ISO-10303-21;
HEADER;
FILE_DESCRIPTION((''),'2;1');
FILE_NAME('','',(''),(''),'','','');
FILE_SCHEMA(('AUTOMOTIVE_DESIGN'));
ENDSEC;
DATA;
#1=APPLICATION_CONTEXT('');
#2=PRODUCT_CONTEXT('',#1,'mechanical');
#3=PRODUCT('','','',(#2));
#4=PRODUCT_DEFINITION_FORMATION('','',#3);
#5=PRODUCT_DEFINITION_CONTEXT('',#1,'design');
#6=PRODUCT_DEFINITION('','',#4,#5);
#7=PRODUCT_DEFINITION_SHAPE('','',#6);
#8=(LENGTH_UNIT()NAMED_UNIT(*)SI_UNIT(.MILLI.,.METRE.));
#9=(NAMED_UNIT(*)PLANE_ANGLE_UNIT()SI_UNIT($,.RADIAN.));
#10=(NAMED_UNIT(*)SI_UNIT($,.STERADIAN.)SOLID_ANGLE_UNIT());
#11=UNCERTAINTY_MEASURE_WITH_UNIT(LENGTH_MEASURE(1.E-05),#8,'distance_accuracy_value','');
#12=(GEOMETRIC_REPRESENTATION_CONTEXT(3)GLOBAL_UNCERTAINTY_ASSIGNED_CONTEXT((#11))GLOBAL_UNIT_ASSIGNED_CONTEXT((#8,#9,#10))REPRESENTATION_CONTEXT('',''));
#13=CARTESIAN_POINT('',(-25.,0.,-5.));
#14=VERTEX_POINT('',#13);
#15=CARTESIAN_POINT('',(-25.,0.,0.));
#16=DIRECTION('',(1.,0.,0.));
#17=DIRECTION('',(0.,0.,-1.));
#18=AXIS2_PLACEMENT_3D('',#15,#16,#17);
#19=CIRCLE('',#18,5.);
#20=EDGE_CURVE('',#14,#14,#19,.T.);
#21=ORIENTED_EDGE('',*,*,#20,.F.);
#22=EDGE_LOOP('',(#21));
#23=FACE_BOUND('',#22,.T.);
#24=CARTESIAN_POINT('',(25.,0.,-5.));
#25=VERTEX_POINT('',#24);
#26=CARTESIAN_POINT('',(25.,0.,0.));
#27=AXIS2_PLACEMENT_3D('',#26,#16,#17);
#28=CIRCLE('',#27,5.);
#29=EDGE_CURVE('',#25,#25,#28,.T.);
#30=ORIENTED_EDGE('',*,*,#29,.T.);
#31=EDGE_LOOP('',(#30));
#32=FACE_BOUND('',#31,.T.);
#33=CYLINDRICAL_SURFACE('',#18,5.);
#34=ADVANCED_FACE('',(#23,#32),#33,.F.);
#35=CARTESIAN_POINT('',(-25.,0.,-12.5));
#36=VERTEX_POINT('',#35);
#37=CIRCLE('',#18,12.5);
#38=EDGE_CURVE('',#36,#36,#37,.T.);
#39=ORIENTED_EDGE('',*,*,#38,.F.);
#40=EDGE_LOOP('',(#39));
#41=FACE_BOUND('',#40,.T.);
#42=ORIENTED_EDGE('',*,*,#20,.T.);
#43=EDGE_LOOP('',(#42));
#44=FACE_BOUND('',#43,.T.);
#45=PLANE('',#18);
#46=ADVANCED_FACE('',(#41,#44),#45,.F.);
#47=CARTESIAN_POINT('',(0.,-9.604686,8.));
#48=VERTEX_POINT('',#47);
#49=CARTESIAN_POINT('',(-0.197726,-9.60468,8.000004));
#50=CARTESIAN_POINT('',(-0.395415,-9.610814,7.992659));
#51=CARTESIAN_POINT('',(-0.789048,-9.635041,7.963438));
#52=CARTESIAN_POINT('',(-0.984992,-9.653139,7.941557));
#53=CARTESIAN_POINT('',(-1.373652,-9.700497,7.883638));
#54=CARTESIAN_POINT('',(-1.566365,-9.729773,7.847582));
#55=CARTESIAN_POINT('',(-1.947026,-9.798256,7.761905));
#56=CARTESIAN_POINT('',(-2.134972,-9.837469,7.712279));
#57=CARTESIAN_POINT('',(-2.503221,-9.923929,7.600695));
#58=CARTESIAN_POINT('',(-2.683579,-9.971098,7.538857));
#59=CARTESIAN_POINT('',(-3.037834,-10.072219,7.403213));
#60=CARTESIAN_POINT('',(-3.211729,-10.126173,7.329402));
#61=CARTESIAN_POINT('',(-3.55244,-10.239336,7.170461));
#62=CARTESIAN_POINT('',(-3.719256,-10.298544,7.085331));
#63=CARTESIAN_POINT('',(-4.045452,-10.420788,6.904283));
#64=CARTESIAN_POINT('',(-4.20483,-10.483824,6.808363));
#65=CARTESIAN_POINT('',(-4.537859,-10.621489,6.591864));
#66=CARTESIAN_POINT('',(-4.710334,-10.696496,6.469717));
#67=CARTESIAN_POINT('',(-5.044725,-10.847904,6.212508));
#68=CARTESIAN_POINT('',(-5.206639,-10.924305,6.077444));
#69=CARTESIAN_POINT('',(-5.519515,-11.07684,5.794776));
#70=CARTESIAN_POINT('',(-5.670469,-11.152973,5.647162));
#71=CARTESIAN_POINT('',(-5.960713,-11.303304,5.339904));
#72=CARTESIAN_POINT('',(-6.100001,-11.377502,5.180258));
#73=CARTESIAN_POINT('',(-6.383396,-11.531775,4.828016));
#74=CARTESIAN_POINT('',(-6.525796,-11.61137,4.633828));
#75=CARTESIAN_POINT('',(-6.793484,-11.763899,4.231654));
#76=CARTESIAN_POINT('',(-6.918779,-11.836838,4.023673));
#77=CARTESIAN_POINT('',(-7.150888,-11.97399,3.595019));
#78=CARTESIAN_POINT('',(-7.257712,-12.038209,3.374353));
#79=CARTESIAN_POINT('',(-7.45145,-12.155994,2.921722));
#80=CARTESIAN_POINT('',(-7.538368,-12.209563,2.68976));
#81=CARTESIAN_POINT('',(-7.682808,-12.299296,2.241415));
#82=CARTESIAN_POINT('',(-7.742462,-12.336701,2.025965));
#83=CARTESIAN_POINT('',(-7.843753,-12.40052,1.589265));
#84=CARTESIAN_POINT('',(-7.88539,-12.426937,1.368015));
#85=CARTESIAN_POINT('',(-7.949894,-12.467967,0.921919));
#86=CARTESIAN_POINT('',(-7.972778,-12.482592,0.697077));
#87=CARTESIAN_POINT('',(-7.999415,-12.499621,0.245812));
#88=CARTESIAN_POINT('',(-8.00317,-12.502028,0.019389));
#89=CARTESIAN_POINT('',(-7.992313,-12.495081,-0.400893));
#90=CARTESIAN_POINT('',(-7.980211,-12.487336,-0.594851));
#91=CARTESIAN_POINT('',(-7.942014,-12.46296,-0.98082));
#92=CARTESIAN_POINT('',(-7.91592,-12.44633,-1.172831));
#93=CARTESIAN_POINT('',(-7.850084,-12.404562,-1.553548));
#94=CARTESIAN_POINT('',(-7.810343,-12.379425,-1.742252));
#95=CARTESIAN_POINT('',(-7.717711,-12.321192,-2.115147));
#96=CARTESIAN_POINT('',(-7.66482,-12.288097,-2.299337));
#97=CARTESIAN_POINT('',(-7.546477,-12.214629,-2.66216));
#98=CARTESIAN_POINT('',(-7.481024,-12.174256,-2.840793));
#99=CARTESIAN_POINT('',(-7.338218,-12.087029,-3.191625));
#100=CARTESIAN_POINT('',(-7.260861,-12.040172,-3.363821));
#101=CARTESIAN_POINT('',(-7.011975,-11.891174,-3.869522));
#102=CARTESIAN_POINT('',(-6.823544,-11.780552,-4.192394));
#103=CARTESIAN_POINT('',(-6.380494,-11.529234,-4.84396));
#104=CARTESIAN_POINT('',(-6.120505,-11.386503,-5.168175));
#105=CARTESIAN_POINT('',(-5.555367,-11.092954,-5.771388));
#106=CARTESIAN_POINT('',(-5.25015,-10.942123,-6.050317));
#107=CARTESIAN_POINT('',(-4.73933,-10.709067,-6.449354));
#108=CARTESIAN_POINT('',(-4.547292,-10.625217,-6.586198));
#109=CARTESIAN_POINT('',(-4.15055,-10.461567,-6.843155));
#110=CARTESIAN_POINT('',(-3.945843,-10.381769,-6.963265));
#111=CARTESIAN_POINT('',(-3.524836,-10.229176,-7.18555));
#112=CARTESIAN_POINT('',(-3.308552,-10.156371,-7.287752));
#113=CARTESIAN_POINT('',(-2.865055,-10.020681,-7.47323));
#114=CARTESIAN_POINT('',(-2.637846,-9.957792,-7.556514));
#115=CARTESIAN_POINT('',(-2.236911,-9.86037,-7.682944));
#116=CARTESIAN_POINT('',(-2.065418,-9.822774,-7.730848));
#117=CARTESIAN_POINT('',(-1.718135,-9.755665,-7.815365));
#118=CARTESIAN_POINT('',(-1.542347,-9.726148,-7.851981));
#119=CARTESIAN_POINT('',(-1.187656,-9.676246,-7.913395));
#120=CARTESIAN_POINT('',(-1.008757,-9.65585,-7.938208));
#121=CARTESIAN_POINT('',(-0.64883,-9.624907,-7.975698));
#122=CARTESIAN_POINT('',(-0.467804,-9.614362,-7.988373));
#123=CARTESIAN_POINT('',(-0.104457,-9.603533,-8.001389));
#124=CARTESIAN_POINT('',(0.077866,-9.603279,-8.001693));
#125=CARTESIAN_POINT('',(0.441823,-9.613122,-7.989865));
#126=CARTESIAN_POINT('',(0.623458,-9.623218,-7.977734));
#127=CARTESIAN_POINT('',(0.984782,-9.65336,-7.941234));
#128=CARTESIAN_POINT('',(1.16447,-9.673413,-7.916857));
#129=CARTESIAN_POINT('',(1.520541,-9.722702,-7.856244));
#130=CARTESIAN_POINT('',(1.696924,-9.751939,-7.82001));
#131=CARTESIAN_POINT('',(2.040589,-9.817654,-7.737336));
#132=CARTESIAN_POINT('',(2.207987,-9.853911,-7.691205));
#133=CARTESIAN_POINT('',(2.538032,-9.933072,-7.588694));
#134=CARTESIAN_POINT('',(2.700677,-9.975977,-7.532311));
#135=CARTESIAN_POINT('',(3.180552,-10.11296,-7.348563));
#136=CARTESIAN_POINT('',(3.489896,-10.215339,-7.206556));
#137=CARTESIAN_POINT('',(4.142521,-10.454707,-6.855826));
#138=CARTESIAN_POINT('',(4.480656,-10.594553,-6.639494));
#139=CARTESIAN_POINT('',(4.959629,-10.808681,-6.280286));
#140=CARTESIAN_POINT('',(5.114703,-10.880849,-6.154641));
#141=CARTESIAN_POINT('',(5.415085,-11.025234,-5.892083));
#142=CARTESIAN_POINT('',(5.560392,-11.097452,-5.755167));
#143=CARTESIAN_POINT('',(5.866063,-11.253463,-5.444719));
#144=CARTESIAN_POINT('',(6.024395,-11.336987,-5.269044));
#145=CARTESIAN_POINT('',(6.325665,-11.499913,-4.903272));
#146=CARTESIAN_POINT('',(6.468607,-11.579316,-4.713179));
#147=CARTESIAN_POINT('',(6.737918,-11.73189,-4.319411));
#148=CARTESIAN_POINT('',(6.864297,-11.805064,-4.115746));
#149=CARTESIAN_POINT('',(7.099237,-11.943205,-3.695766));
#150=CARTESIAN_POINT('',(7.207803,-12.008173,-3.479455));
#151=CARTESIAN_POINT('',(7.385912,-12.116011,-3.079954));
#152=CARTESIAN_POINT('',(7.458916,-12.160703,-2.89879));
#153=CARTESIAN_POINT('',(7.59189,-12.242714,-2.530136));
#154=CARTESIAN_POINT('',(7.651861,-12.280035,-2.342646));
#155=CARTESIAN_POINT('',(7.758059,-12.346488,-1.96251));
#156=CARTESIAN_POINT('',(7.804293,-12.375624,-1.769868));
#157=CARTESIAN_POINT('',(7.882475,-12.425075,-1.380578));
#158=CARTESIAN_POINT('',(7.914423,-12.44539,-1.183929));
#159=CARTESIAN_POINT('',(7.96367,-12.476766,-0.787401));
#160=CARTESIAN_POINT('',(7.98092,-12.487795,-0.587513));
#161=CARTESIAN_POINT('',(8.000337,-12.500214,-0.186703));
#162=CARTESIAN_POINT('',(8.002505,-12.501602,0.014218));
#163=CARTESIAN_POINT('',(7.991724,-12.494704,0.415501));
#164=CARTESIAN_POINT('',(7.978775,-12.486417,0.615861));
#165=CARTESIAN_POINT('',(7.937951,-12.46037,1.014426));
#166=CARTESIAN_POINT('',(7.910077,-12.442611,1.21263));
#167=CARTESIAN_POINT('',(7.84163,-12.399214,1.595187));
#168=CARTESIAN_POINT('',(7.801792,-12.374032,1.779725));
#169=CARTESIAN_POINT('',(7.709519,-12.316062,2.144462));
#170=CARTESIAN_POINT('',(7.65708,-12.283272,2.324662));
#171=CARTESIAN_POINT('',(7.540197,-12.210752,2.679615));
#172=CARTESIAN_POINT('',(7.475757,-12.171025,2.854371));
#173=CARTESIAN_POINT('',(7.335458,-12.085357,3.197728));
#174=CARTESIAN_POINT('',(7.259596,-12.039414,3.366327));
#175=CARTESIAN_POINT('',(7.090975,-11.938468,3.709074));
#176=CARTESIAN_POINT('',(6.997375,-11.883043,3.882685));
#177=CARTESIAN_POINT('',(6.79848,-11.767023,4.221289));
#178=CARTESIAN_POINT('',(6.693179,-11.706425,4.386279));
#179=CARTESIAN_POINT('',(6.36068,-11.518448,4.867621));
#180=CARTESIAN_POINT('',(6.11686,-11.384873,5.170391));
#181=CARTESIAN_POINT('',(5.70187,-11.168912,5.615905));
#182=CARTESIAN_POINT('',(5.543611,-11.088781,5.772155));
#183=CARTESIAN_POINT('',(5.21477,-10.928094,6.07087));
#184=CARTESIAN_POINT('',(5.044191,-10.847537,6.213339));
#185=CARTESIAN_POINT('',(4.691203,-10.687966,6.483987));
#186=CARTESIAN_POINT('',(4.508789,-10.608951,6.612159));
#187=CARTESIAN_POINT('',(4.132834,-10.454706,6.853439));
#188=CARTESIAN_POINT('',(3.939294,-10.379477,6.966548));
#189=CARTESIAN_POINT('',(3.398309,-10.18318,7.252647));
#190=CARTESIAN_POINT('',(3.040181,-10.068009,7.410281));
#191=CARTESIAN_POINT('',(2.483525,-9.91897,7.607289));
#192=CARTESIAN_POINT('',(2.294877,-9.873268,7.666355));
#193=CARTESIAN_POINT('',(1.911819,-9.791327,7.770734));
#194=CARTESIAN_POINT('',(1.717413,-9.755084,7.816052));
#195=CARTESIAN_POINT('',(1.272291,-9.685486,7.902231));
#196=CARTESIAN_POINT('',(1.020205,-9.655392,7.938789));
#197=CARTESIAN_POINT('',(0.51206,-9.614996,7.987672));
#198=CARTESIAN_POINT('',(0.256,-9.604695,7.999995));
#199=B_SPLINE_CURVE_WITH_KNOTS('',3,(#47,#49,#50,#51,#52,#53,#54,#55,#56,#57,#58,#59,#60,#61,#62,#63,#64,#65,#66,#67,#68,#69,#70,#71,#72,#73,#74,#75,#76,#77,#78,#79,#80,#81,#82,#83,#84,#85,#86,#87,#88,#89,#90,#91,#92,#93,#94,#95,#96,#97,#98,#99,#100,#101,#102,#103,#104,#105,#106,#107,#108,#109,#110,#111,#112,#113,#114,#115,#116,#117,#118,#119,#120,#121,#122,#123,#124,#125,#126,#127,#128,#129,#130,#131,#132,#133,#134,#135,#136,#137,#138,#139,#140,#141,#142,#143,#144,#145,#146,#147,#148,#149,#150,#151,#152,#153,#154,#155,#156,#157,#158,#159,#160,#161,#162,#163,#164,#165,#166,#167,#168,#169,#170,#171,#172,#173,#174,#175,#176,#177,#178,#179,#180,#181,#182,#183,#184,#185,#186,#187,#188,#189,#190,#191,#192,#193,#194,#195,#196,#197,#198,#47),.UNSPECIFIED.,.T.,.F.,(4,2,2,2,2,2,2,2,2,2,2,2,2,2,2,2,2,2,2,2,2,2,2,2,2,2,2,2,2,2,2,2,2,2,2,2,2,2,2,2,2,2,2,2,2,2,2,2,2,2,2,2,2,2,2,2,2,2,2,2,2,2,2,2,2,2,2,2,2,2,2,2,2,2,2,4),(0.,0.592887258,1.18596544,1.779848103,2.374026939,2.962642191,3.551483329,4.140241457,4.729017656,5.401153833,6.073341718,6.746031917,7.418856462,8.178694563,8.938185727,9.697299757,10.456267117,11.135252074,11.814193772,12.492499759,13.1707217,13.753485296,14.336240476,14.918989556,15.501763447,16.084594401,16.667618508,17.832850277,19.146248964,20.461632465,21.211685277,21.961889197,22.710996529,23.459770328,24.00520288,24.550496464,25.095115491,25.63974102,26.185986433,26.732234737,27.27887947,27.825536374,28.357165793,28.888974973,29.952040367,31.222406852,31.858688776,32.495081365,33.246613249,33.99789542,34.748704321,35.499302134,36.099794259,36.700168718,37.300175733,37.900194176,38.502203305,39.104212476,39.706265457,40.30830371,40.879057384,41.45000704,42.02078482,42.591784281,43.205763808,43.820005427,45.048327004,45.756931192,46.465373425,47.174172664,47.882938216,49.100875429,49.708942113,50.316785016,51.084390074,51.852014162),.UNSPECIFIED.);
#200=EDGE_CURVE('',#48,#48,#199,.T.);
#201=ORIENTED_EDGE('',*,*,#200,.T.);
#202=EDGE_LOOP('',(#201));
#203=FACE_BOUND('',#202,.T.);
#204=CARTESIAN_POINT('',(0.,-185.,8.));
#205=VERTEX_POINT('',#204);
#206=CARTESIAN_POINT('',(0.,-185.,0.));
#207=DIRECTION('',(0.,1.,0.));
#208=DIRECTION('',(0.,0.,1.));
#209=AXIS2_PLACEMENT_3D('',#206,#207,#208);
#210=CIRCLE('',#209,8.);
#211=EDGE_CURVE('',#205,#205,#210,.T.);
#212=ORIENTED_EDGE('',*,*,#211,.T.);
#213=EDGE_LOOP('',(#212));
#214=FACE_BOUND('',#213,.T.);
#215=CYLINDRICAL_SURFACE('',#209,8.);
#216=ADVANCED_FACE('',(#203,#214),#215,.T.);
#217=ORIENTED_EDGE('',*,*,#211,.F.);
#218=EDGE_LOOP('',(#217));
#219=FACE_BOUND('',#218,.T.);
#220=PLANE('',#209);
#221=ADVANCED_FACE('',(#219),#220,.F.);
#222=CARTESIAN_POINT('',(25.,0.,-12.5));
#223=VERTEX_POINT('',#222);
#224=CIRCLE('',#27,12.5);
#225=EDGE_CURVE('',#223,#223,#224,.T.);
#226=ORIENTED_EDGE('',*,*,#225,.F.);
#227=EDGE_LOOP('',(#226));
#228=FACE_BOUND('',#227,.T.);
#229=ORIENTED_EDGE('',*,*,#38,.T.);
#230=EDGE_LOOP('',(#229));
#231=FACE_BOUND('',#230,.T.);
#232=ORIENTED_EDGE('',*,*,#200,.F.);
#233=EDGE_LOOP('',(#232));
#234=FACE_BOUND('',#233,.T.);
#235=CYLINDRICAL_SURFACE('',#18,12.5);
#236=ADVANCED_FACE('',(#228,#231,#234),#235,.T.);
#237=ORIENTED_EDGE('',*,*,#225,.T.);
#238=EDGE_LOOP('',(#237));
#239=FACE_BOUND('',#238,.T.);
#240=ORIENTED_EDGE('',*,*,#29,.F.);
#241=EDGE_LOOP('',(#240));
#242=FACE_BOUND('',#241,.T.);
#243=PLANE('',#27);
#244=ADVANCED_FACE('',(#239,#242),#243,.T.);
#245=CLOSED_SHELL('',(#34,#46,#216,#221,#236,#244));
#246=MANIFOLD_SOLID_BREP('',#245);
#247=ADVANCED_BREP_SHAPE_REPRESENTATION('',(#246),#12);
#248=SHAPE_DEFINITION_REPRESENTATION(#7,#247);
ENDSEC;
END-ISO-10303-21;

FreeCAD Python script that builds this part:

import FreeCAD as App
import Part
import Sketcher
from FreeCAD import Vector
Q = App.Units.Quantity

doc = App.newDocument("Part")
body = doc.addObject("PartDesign::Body", "Body")

sketch1 = body.newObject("Sketcher::SketchObject", "Sketch")
sketch1.AttachmentSupport = (doc.getObject("YZ_Plane"), [""])
sketch1.MapMode = "FlatFace"
sketch1.addGeometry([
    Part.Circle(Vector(0, 0, 0), Vector(0, 0, 1), 12.5),
    Part.Circle(Vector(0, 0, 0), Vector(0, 0, 1), 5),
], False)
sketch1.addConstraint([
    Sketcher.Constraint("Coincident", 0, 3, -1, 1),
    Sketcher.Constraint("Coincident", 1, 3, -1, 1),
    Sketcher.Constraint("Diameter", 0, Q("25 mm")),
    Sketcher.Constraint("Diameter", 1, Q("10 mm")),
])
pad1 = body.newObject("PartDesign::Pad", "Pad")
pad1.Profile = sketch1
pad1.Type = "TwoLengths"
pad1.Length = 25
pad1.Length2 = 25

sketch2 = body.newObject("Sketcher::SketchObject", "Sketch001")
sketch2.AttachmentSupport = (doc.getObject("XZ_Plane"), [""])
sketch2.MapMode = "FlatFace"
sketch2.AttachmentOffset = App.Placement(Vector(0, 0, 5), App.Rotation())
sketch2.addGeometry(Part.Circle(Vector(0, 0, 0), Vector(0, 0, 1), 8), False)
sketch2.addConstraint([
    Sketcher.Constraint("Coincident", 0, 3, -1, 1),
    Sketcher.Constraint("Diameter", 0, Q("16 mm")),
])
pad2 = body.newObject("PartDesign::Pad", "Pad001")
pad2.Profile = sketch2
pad2.Length = 180

doc.recompute()
